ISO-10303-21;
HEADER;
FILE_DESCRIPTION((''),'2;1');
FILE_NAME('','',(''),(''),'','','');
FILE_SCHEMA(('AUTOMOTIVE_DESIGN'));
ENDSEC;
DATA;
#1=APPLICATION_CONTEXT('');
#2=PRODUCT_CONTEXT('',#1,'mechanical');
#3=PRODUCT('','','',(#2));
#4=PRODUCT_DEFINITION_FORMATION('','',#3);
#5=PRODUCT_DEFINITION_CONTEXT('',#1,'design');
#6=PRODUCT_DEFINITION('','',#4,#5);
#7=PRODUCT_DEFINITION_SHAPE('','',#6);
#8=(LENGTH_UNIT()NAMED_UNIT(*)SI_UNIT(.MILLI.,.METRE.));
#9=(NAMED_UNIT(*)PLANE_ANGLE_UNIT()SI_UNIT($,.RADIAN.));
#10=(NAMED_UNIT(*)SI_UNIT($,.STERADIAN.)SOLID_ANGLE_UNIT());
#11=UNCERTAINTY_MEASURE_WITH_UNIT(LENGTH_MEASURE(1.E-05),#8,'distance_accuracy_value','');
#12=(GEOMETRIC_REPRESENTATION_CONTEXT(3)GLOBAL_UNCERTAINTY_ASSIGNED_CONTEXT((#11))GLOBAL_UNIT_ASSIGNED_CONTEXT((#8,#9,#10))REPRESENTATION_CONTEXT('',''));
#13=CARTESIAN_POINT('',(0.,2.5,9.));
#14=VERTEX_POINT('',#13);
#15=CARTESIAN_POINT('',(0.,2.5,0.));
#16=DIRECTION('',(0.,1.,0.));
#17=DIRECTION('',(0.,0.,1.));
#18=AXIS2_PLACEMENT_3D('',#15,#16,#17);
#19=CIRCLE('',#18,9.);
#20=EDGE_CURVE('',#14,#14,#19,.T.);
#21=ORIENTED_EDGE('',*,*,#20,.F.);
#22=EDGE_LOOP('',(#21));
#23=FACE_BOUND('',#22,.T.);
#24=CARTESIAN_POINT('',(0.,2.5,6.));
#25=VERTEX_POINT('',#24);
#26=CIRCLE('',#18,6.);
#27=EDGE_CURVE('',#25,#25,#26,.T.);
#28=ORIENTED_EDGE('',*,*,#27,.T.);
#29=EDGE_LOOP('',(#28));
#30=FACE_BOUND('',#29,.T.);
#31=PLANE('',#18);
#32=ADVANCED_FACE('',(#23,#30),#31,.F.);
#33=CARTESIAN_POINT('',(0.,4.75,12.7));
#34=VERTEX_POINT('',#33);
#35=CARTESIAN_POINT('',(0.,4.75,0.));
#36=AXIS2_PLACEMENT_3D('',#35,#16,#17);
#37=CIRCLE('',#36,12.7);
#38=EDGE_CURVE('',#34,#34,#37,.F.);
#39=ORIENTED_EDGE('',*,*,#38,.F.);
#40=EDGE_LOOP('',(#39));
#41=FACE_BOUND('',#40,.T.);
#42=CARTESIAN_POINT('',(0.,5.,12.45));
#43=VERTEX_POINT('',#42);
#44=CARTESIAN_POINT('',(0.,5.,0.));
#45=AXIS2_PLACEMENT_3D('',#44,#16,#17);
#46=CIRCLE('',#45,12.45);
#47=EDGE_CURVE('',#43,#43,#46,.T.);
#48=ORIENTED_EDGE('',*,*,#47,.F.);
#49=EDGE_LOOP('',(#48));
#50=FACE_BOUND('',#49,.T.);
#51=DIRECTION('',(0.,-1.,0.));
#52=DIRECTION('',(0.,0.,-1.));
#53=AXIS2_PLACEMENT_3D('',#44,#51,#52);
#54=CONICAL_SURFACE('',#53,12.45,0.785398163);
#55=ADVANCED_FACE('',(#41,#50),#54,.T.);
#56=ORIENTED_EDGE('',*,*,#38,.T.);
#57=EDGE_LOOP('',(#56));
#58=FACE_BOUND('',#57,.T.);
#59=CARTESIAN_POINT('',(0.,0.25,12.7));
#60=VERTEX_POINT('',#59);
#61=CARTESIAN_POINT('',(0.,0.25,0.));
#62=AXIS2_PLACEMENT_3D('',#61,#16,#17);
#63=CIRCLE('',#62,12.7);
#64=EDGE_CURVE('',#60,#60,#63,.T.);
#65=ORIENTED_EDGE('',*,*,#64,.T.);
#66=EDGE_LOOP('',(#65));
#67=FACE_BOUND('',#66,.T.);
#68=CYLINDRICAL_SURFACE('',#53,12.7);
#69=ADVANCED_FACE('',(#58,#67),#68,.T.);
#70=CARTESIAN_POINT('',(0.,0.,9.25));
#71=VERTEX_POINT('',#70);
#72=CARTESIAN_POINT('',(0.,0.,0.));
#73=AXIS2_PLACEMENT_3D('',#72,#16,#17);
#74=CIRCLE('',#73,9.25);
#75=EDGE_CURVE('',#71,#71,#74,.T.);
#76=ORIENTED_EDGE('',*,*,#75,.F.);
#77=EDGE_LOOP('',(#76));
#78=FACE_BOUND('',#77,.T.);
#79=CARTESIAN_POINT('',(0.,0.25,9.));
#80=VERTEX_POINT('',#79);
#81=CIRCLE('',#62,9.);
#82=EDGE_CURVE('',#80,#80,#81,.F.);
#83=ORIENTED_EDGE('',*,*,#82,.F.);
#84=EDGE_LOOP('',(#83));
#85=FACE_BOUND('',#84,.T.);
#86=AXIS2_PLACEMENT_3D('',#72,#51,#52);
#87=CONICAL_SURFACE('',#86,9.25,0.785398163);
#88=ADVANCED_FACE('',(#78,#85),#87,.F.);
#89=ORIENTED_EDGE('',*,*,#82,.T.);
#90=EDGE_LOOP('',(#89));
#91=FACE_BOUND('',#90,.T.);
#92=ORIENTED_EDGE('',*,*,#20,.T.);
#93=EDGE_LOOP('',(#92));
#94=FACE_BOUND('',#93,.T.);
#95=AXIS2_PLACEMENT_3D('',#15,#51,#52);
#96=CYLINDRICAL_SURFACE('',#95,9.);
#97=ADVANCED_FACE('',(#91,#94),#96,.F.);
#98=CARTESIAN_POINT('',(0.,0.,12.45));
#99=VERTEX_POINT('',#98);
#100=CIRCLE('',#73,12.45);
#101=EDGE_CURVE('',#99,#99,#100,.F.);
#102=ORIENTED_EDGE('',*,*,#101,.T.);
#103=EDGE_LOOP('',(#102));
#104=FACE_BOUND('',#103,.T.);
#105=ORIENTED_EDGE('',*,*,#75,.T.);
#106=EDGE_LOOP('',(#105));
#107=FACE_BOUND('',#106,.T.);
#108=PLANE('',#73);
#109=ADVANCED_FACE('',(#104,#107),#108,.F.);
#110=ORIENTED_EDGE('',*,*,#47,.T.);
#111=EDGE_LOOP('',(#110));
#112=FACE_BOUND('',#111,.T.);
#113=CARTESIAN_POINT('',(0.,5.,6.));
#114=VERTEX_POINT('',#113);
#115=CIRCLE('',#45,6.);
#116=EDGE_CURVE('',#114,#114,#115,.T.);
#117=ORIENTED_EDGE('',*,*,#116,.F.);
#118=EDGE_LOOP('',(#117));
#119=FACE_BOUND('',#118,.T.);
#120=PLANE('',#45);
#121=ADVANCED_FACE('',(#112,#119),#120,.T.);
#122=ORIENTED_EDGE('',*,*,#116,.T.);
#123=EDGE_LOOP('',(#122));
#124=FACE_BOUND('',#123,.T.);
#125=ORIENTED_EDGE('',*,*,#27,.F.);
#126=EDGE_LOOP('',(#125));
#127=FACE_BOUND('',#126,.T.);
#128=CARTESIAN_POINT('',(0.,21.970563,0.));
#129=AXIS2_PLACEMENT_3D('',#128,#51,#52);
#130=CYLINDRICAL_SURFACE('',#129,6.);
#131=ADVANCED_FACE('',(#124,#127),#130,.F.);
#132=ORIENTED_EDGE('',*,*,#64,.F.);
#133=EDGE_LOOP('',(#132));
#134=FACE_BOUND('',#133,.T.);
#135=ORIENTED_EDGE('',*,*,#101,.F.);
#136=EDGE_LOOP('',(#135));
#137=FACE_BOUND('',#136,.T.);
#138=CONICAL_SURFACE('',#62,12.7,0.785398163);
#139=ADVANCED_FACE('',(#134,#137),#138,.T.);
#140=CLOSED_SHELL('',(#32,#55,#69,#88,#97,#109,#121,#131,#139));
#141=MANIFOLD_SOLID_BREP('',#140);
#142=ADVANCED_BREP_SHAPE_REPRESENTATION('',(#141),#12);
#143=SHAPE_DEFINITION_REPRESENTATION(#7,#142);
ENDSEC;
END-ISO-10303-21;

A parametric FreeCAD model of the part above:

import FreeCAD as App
import Part
import Sketcher

V = App.Vector


def edges_at(feature, points):
    """Names of the edges that pass closest to the given points."""
    edges = feature.Shape.Edges
    near = lambda p: min(range(len(edges)), key=lambda i: edges[i].distToShape(Part.Vertex(*p))[0])
    return sorted({f"Edge{near(p) + 1}" for p in points})

doc = App.newDocument("Part")
params = doc.addObject("Spreadsheet::Sheet", "Params")
for row, (alias, value) in enumerate([
    ("sketch1_diameter", "25.4 mm"),
    ("pad1_length", "5 mm"),
    ("sketch2_diameter", "12 mm"),
    ("pocket1_length", "5 mm"),
    ("sketch3_diameter", "18 mm"),
    ("sketch3_diameter2", "12 mm"),
    ("pocket2_length", "2.5 mm"),
    ("chamfer_size", "0.25 mm"),
], start=1):
    params.set(f"A{row}", alias)
    params.set(f"B{row}", "=" + value)
    params.setAlias(f"B{row}", alias)

body = doc.addObject("PartDesign::Body", "Body")

sketch1 = doc.addObject("Sketcher::SketchObject", "Sketch")
body.addObject(sketch1)
sketch1.AttachmentSupport = (doc.XZ_Plane, [""])
sketch1.MapMode = "FlatFace"
sketch1.addGeometry(Part.Circle(V(0, 0, 0), V(0, 0, 1), 13), False)
sketch1.addConstraint([
    Sketcher.Constraint("Coincident", 0, 3, -1, 1),
    Sketcher.Constraint("Diameter", 0, 25.4),
])
sketch1.setExpression("Constraints[1]", "Params.sketch1_diameter")
pad1 = doc.addObject("PartDesign::Pad", "Pad")
body.addObject(pad1)
pad1.Profile = sketch1
pad1.setExpression("Length", "Params.pad1_length")
pad1.Reversed = True

sketch2 = doc.addObject("Sketcher::SketchObject", "Sketch001")
body.addObject(sketch2)
sketch2.AttachmentSupport = (doc.XZ_Plane, [""])
sketch2.MapMode = "FlatFace"
sketch2.addGeometry(Part.Circle(V(0, 0, 0), V(0, 0, 1), 6), False)
sketch2.addConstraint([
    Sketcher.Constraint("Coincident", 0, 3, -1, 1),
    Sketcher.Constraint("Diameter", 0, 12.0),
])
sketch2.setExpression("Constraints[1]", "Params.sketch2_diameter")
pocket1 = doc.addObject("PartDesign::Pocket", "Pocket")
body.addObject(pocket1)
pocket1.Profile = sketch2
pocket1.setExpression("Length", "Params.pocket1_length")

sketch3 = doc.addObject("Sketcher::SketchObject", "Sketch002")
body.addObject(sketch3)
sketch3.AttachmentSupport = (doc.XZ_Plane, [""])
sketch3.MapMode = "FlatFace"
sketch3.addGeometry([
    Part.Circle(V(0, 0, 0), V(0, 0, 1), 9),
    Part.Circle(V(0, 0, 0), V(0, 0, 1), 6),
], False)
sketch3.addConstraint([
    Sketcher.Constraint("Coincident", 0, 3, -1, 1),
    Sketcher.Constraint("Coincident", 1, 3, -1, 1),
    Sketcher.Constraint("Diameter", 0, 18.0),
    Sketcher.Constraint("Diameter", 1, 12.0),
])
sketch3.setExpression("Constraints[2]", "Params.sketch3_diameter")
sketch3.setExpression("Constraints[3]", "Params.sketch3_diameter2")
pocket2 = doc.addObject("PartDesign::Pocket", "Pocket001")
body.addObject(pocket2)
pocket2.Profile = sketch3
pocket2.setExpression("Length", "Params.pocket2_length")
doc.recompute()

chamfer = doc.addObject("PartDesign::Chamfer", "Chamfer")
body.addObject(chamfer)
chamfer.Base = (pocket2, edges_at(pocket2, [(0, 0, -9), (0, 0, -12.7), (0, 5, -12.7)]))
chamfer.setExpression("Size", "Params.chamfer_size")

doc.recompute()
